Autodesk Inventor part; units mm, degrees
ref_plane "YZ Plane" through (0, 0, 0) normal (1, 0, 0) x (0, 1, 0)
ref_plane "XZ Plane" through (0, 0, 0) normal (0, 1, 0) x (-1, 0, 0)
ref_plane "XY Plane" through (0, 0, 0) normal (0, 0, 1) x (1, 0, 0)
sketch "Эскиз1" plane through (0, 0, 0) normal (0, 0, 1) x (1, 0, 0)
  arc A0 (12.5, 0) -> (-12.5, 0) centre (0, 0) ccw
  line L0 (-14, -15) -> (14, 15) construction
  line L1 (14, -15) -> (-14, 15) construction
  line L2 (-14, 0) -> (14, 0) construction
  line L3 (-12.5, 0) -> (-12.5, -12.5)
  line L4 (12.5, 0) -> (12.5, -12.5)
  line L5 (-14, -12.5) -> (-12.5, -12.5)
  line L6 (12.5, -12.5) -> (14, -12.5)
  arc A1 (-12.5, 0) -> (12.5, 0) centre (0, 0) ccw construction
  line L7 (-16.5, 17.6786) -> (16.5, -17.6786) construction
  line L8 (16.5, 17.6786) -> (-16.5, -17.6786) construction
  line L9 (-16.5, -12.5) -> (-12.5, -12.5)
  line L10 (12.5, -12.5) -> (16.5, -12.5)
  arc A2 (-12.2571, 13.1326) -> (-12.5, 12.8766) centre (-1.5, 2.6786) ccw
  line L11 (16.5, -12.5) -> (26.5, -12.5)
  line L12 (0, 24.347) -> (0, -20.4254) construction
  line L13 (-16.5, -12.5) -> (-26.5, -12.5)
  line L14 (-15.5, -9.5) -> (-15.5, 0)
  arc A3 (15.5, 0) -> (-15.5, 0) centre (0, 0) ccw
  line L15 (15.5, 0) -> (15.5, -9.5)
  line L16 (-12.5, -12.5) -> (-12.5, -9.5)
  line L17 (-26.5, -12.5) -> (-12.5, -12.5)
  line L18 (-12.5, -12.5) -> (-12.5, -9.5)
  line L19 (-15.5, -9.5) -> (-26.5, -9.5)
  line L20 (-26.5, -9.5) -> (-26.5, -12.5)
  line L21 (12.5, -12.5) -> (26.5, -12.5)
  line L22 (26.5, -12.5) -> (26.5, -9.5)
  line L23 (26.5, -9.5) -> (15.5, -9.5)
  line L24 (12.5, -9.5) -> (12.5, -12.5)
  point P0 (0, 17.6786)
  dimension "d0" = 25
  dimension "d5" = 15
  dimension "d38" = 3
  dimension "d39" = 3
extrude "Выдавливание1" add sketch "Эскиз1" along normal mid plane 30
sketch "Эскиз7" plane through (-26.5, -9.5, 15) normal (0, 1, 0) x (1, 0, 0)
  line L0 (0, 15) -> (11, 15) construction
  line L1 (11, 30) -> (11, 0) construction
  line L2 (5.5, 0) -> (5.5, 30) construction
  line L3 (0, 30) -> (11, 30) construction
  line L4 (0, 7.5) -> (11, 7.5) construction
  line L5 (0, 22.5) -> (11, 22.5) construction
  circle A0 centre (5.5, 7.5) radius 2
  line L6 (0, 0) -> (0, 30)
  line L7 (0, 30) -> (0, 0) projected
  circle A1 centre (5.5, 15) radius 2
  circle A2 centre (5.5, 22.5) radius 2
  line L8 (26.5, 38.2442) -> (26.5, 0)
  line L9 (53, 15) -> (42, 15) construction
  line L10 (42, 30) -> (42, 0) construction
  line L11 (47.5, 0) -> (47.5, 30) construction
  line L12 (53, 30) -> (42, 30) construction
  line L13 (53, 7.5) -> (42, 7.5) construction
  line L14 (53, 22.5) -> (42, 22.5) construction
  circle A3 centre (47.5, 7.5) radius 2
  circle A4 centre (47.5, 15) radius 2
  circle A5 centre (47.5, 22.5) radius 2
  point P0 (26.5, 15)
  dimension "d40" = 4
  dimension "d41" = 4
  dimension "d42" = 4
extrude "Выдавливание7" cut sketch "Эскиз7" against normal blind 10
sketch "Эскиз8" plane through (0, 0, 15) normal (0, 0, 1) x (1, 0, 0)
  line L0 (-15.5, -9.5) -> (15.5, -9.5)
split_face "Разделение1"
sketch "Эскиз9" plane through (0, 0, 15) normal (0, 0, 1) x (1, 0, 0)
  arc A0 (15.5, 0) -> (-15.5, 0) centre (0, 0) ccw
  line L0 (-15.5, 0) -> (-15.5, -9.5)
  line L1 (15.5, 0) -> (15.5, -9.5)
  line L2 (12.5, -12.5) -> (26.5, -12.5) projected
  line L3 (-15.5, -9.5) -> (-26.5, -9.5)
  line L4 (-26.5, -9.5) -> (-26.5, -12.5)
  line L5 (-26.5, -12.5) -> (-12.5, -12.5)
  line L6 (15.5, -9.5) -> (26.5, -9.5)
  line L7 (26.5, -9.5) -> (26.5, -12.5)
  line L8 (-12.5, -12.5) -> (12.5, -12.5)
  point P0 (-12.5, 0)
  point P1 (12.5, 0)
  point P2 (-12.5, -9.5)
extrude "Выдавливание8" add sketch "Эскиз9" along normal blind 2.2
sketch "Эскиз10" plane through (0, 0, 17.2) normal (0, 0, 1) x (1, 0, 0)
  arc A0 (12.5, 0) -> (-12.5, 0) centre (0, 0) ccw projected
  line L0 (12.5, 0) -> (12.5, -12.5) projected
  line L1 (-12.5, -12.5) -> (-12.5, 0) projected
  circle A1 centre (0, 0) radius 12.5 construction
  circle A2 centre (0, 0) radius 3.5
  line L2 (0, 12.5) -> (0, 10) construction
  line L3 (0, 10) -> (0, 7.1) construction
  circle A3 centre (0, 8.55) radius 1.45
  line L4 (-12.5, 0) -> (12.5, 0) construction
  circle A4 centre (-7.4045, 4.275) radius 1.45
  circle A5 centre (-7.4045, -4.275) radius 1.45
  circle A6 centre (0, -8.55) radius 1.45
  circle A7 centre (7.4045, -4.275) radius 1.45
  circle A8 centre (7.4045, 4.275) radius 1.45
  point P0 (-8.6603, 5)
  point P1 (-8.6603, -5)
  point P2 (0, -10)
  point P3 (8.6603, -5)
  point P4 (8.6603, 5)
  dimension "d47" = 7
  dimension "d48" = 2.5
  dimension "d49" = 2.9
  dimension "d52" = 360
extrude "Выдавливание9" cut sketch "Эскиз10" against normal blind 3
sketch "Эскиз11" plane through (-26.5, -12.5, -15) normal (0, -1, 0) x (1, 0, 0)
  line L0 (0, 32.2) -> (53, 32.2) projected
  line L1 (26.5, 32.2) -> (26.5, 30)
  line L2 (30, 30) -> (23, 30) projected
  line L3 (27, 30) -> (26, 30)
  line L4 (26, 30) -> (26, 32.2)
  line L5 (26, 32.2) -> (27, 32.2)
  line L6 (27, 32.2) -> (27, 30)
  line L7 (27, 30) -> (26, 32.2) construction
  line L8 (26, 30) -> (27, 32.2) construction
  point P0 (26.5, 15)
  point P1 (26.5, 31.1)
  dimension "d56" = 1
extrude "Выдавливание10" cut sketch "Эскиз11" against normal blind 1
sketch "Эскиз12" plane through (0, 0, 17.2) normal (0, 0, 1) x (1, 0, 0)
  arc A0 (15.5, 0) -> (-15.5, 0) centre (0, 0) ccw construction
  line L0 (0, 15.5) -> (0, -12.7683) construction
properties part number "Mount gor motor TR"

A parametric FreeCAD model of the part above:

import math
import FreeCAD as App
import Part
import Sketcher

doc = App.newDocument("Part")
body = doc.addObject("PartDesign::Body", "Body")

# Sketch on XY plane
sketch1 = body.newObject("Sketcher::SketchObject", "Sketch")
sketch1.AttachmentSupport = (doc.getObject("XY_Plane"), [""])
sketch1.MapMode = "FlatFace"
sketch1.addGeometry([
    Part.ArcOfCircle(Part.Circle(App.Vector(0, 0, 0), App.Vector(0, 0, 1), 12.5), math.radians(0), math.radians(180)),  # 0
    Part.LineSegment(App.Vector(12.5, 0, 0), App.Vector(12.5, -12.5, 0)),  # 1
    Part.LineSegment(App.Vector(12.5, -12.5, 0), App.Vector(26.5, -12.5, 0)),  # 2
    Part.LineSegment(App.Vector(26.5, -12.5, 0), App.Vector(26.5, -9.5, 0)),  # 3
    Part.LineSegment(App.Vector(26.5, -9.5, 0), App.Vector(15.5, -9.5, 0)),  # 4
    Part.LineSegment(App.Vector(15.5, -9.5, 0), App.Vector(15.5, 0, 0)),  # 5
    Part.ArcOfCircle(Part.Circle(App.Vector(0, 0, 0), App.Vector(0, 0, 1), 15.5), math.radians(0), math.radians(180)),  # 6
    Part.LineSegment(App.Vector(-15.5, 0, 0), App.Vector(-15.5, -9.5, 0)),  # 7
    Part.LineSegment(App.Vector(-15.5, -9.5, 0), App.Vector(-26.5, -9.5, 0)),  # 8
    Part.LineSegment(App.Vector(-26.5, -9.5, 0), App.Vector(-26.5, -12.5, 0)),  # 9
    Part.LineSegment(App.Vector(-26.5, -12.5, 0), App.Vector(-12.5, -12.5, 0)),  # 10
    Part.LineSegment(App.Vector(-12.5, -12.5, 0), App.Vector(-12.5, 0, 0)),  # 11
], False)
sketch1.addConstraint([
    Sketcher.Constraint("Tangent", 0, 1, 1, 1),
    Sketcher.Constraint("Coincident", 1, 2, 2, 1),
    Sketcher.Constraint("Coincident", 2, 2, 3, 1),
    Sketcher.Constraint("Coincident", 3, 2, 4, 1),
    Sketcher.Constraint("Coincident", 4, 2, 5, 1),
    Sketcher.Constraint("Tangent", 5, 2, 6, 1),
    Sketcher.Constraint("Tangent", 6, 2, 7, 1),
    Sketcher.Constraint("Coincident", 7, 2, 8, 1),
    Sketcher.Constraint("Coincident", 8, 2, 9, 1),
    Sketcher.Constraint("Coincident", 9, 2, 10, 1),
    Sketcher.Constraint("Coincident", 10, 2, 11, 1),
    Sketcher.Constraint("Tangent", 11, 2, 0, 2),
    Sketcher.Constraint("Vertical", 1),
    Sketcher.Constraint("Horizontal", 2),
    Sketcher.Constraint("Vertical", 3),
    Sketcher.Constraint("Horizontal", 4),
    Sketcher.Constraint("Vertical", 5),
    Sketcher.Constraint("Vertical", 7),
    Sketcher.Constraint("Horizontal", 8),
    Sketcher.Constraint("Vertical", 9),
    Sketcher.Constraint("Horizontal", 10),
    Sketcher.Constraint("Vertical", 11),
    Sketcher.Constraint("Coincident", 0, 3, -1, 1),
    Sketcher.Constraint("Coincident", 6, 3, -1, 1),
    Sketcher.Constraint("Symmetric", 3, 2, 8, 2, -2),
    Sketcher.Constraint("Horizontal", 2, 2, 9, 2),
    Sketcher.Constraint("Radius", 0, 12.5),
    Sketcher.Constraint("DistanceY", 3, 1, 3, 2, 3.0),
    Sketcher.Constraint("DistanceX", 1, 2, 4, 2, 3.0),
    Sketcher.Constraint("DistanceX", 2, 1, 2, 2, 14.0),
    Sketcher.Constraint("DistanceY", 1, 2, 1, 1, 12.5),
])
pad1 = body.newObject("PartDesign::Pad", "Pad")
pad1.Profile = sketch1
pad1.Length = 30
pad1.Midplane = True

# Sketch on XZ plane
sketch2 = body.newObject("Sketcher::SketchObject", "Sketch001")
sketch2.AttachmentSupport = (doc.getObject("XZ_Plane"), [""])
sketch2.MapMode = "FlatFace"
sketch2.AttachmentOffset = App.Placement(App.Vector(0, 0, 9.5), App.Rotation())
sketch2.addGeometry([
    Part.Circle(App.Vector(-21, 7.5, 0), App.Vector(0, 0, 1), 2),  # 0
    Part.Circle(App.Vector(-21, 0, 0), App.Vector(0, 0, 1), 2),  # 1
    Part.Circle(App.Vector(-21, -7.5, 0), App.Vector(0, 0, 1), 2),  # 2
    Part.Circle(App.Vector(21, 7.5, 0), App.Vector(0, 0, 1), 2),  # 3
    Part.Circle(App.Vector(21, 0, 0), App.Vector(0, 0, 1), 2),  # 4
    Part.Circle(App.Vector(21, -7.5, 0), App.Vector(0, 0, 1), 2),  # 5
], False)
sketch2.addConstraint([
    Sketcher.Constraint("Equal", 0, 1),
    Sketcher.Constraint("Equal", 1, 2),
    Sketcher.Constraint("Equal", 2, 3),
    Sketcher.Constraint("Equal", 3, 4),
    Sketcher.Constraint("Equal", 4, 5),
    Sketcher.Constraint("Symmetric", 2, 3, 3, 3, -1, 1),
    Sketcher.Constraint("Symmetric", 1, 3, 4, 3, -1, 1),
    Sketcher.Constraint("Symmetric", 0, 3, 5, 3, -1, 1),
    Sketcher.Constraint("Symmetric", 0, 3, 3, 3, -2),
    Sketcher.Constraint("PointOnObject", 1, 3, -1),
    Sketcher.Constraint("Vertical", 0, 3, 1, 3),
    Sketcher.Constraint("Diameter", 0, 4.0),
    Sketcher.Constraint("DistanceX", 0, 3, -1, 1, 21.0),
    Sketcher.Constraint("DistanceY", 2, 3, 0, 3, 15.0),
])
pocket1 = body.newObject("PartDesign::Pocket", "Pocket")
pocket1.Profile = sketch2
pocket1.Length = 10
pocket1.Reversed = True

# Sketch on XY plane
sketch3 = body.newObject("Sketcher::SketchObject", "Sketch002")
sketch3.AttachmentSupport = (doc.getObject("XY_Plane"), [""])
sketch3.MapMode = "FlatFace"
sketch3.AttachmentOffset = App.Placement(App.Vector(0, 0, 15), App.Rotation())
sketch3.addGeometry([
    Part.LineSegment(App.Vector(15.5, -9.5, 0), App.Vector(15.5, 0, 0)),  # 0
    Part.ArcOfCircle(Part.Circle(App.Vector(0, 0, 0), App.Vector(0, 0, 1), 15.5), math.radians(0), math.radians(180)),  # 1
    Part.LineSegment(App.Vector(-15.5, 0, 0), App.Vector(-15.5, -9.5, 0)),  # 2
    Part.LineSegment(App.Vector(-15.5, -9.5, 0), App.Vector(-26.5, -9.5, 0)),  # 3
    Part.LineSegment(App.Vector(-26.5, -9.5, 0), App.Vector(-26.5, -12.5, 0)),  # 4
    Part.LineSegment(App.Vector(-26.5, -12.5, 0), App.Vector(26.5, -12.5, 0)),  # 5
    Part.LineSegment(App.Vector(26.5, -12.5, 0), App.Vector(26.5, -9.5, 0)),  # 6
    Part.LineSegment(App.Vector(26.5, -9.5, 0), App.Vector(15.5, -9.5, 0)),  # 7
], False)
sketch3.addConstraint([
    Sketcher.Constraint("Tangent", 0, 2, 1, 1),
    Sketcher.Constraint("Tangent", 1, 2, 2, 1),
    Sketcher.Constraint("Coincident", 2, 2, 3, 1),
    Sketcher.Constraint("Coincident", 3, 2, 4, 1),
    Sketcher.Constraint("Coincident", 4, 2, 5, 1),
    Sketcher.Constraint("Coincident", 5, 2, 6, 1),
    Sketcher.Constraint("Coincident", 6, 2, 7, 1),
    Sketcher.Constraint("Coincident", 7, 2, 0, 1),
    Sketcher.Constraint("Vertical", 0),
    Sketcher.Constraint("Vertical", 2),
    Sketcher.Constraint("Horizontal", 3),
    Sketcher.Constraint("Vertical", 4),
    Sketcher.Constraint("Horizontal", 5),
    Sketcher.Constraint("Vertical", 6),
    Sketcher.Constraint("Horizontal", 7),
    Sketcher.Constraint("Coincident", 1, 3, -1, 1),
    Sketcher.Constraint("Symmetric", 3, 2, 6, 2, -2),
    Sketcher.Constraint("Radius", 1, 15.5),
    Sketcher.Constraint("DistanceX", 3, 2, 3, 1, 11.0),
    Sketcher.Constraint("DistanceY", 4, 2, 4, 1, 3.0),
    Sketcher.Constraint("DistanceY", 0, 1, 0, 2, 9.5),
])
pad2 = body.newObject("PartDesign::Pad", "Pad001")
pad2.Profile = sketch3
pad2.Length = 2.2

# Sketch on XY plane
sketch4 = body.newObject("Sketcher::SketchObject", "Sketch003")
sketch4.AttachmentSupport = (doc.getObject("XY_Plane"), [""])
sketch4.MapMode = "FlatFace"
sketch4.AttachmentOffset = App.Placement(App.Vector(0, 0, 17.2), App.Rotation())
sketch4.addGeometry([
    Part.Circle(App.Vector(0, 0, 0), App.Vector(0, 0, 1), 3.5),  # 0
    Part.Circle(App.Vector(0, 8.6, 0), App.Vector(0, 0, 1), 1.4),  # 1
    Part.Circle(App.Vector(-7.4, 4.3, 0), App.Vector(0, 0, 1), 1.4),  # 2
    Part.Circle(App.Vector(-7.4, -4.3, 0), App.Vector(0, 0, 1), 1.4),  # 3
    Part.Circle(App.Vector(0, -8.6, 0), App.Vector(0, 0, 1), 1.4),  # 4
    Part.Circle(App.Vector(7.4, -4.3, 0), App.Vector(0, 0, 1), 1.4),  # 5
    Part.Circle(App.Vector(7.4, 4.3, 0), App.Vector(0, 0, 1), 1.4),  # 6
], False)
sketch4.addConstraint([
    Sketcher.Constraint("Coincident", 0, 3, -1, 1),
    Sketcher.Constraint("Equal", 1, 2),
    Sketcher.Constraint("Equal", 2, 3),
    Sketcher.Constraint("Equal", 3, 4),
    Sketcher.Constraint("Equal", 4, 5),
    Sketcher.Constraint("Equal", 5, 6),
    Sketcher.Constraint("Symmetric", 1, 3, 4, 3, -1, 1),
    Sketcher.Constraint("Symmetric", 2, 3, 5, 3, -1, 1),
    Sketcher.Constraint("Symmetric", 3, 3, 6, 3, -1, 1),
    Sketcher.Constraint("Symmetric", 3, 3, 5, 3, -2),
    Sketcher.Constraint("PointOnObject", 1, 3, -2),
    Sketcher.Constraint("Diameter", 0, 7.0),
    Sketcher.Constraint("Diameter", 1, 2.9),
    Sketcher.Constraint("DistanceY", 4, 3, 1, 3, 17.1),
    Sketcher.Constraint("DistanceY", 3, 3, 2, 3, 8.55),
    Sketcher.Constraint("DistanceX", 3, 3, 5, 3, 14.809),
])
pocket2 = body.newObject("PartDesign::Pocket", "Pocket001")
pocket2.Profile = sketch4
pocket2.Length = 3

# Sketch on XZ plane
sketch5 = body.newObject("Sketcher::SketchObject", "Sketch004")
sketch5.AttachmentSupport = (doc.getObject("XZ_Plane"), [""])
sketch5.MapMode = "FlatFace"
sketch5.AttachmentOffset = App.Placement(App.Vector(0, 0, 12.5), App.Rotation())
sketch5.addGeometry([
    Part.LineSegment(App.Vector(-0.5, 17.2, 0), App.Vector(-0.5, 15, 0)),
    Part.LineSegment(App.Vector(-0.5, 15, 0), App.Vector(0.5, 15, 0)),
    Part.LineSegment(App.Vector(0.5, 15, 0), App.Vector(0.5, 17.2, 0)),
    Part.LineSegment(App.Vector(0.5, 17.2, 0), App.Vector(-0.5, 17.2, 0)),
], False)
sketch5.addConstraint([
    Sketcher.Constraint("Coincident", 0, 2, 1, 1),
    Sketcher.Constraint("Coincident", 1, 2, 2, 1),
    Sketcher.Constraint("Coincident", 2, 2, 3, 1),
    Sketcher.Constraint("Coincident", 3, 2, 0, 1),
    Sketcher.Constraint("Vertical", 0),
    Sketcher.Constraint("Horizontal", 1),
    Sketcher.Constraint("Vertical", 2),
    Sketcher.Constraint("Horizontal", 3),
    Sketcher.Constraint("DistanceX", 1, 1, 1, 2, 1.0),
    Sketcher.Constraint("DistanceY", 0, 2, 0, 1, 2.2),
    Sketcher.Constraint("DistanceY", -1, 1, 0, 2, 15.0),
    Sketcher.Constraint("DistanceX", 0, 2, -1, 1, 0.5),
])
pocket3 = body.newObject("PartDesign::Pocket", "Pocket002")
pocket3.Profile = sketch5
pocket3.Length = 1

doc.recompute()
